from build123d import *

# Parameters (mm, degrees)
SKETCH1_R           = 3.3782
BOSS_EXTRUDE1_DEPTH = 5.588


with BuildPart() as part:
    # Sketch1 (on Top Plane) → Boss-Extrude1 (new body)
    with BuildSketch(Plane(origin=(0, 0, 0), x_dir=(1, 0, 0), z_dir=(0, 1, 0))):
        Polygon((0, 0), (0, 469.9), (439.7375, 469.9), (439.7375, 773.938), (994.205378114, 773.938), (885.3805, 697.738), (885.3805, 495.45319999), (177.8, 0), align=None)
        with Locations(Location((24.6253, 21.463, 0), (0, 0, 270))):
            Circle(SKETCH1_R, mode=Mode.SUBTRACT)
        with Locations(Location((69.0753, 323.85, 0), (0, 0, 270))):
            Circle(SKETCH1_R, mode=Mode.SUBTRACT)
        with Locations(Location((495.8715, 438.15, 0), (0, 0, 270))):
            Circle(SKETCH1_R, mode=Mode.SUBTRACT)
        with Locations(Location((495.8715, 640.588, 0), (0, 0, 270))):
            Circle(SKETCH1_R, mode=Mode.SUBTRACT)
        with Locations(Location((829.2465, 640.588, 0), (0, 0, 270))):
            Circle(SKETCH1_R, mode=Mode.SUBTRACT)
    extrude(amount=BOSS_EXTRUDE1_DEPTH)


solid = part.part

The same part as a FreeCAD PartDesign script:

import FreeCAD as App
import Part
import Sketcher

V = App.Vector
Q = App.Units.Quantity

doc = App.newDocument("Part")
body = doc.addObject("PartDesign::Body", "Body")

sketch1 = body.newObject("Sketcher::SketchObject", "Sketch")
sketch1.AttachmentSupport = (doc.getObject("XZ_Plane"), [""])
sketch1.MapMode = "FlatFace"
sketch1.addGeometry(Part.LineSegment(V(0, -469.9, 0), V(0, 0, 0)), False)
sketch1.addGeometry(Part.LineSegment(V(0, 0, 0), V(177.8, 0, 0)), False)
sketch1.addGeometry(Part.LineSegment(V(177.8, 0, 0), V(885.4, -495.5, 0)), False)
sketch1.addGeometry(Part.LineSegment(V(885.4, -495.5, 0), V(885.4, -697.7, 0)), False)
sketch1.addGeometry(Part.LineSegment(V(885.4, -697.7, 0), V(994.2, -773.9, 0)), False)
sketch1.addGeometry(Part.LineSegment(V(994.2, -773.9, 0), V(439.7, -773.9, 0)), False)
sketch1.addGeometry(Part.LineSegment(V(439.7, -773.9, 0), V(439.7, -469.9, 0)), False)
sketch1.addGeometry(Part.LineSegment(V(439.7, -469.9, 0), V(0, -469.9, 0)), False)
sketch1.addGeometry(Part.Circle(V(24.6, -21.5, 0), V(0, 0, 1), 3.4), False)
sketch1.addGeometry(Part.Circle(V(69.1, -323.9, 0), V(0, 0, 1), 3.4), False)
sketch1.addGeometry(Part.Circle(V(495.9, -438.1, 0), V(0, 0, 1), 3.4), False)
sketch1.addGeometry(Part.Circle(V(829.2, -640.6, 0), V(0, 0, 1), 3.4), False)
sketch1.addGeometry(Part.Circle(V(495.9, -640.6, 0), V(0, 0, 1), 3.4), False)
sketch1.addConstraint(Sketcher.Constraint("Coincident", 0, 2, 1, 1))
sketch1.addConstraint(Sketcher.Constraint("Coincident", 1, 2, 2, 1))
sketch1.addConstraint(Sketcher.Constraint("Coincident", 2, 2, 3, 1))
sketch1.addConstraint(Sketcher.Constraint("Coincident", 3, 2, 4, 1))
sketch1.addConstraint(Sketcher.Constraint("Coincident", 4, 2, 5, 1))
sketch1.addConstraint(Sketcher.Constraint("Coincident", 5, 2, 6, 1))
sketch1.addConstraint(Sketcher.Constraint("Coincident", 6, 2, 7, 1))
sketch1.addConstraint(Sketcher.Constraint("Coincident", 7, 2, 0, 1))
sketch1.addConstraint(Sketcher.Constraint("Vertical", 0))
sketch1.addConstraint(Sketcher.Constraint("Horizontal", 1))
sketch1.addConstraint(Sketcher.Constraint("Vertical", 3))
sketch1.addConstraint(Sketcher.Constraint("Horizontal", 5))
sketch1.addConstraint(Sketcher.Constraint("Vertical", 6))
sketch1.addConstraint(Sketcher.Constraint("Horizontal", 7))
sketch1.addConstraint(Sketcher.Constraint("Coincident", 0, 2, -1, 1))
sketch1.addConstraint(Sketcher.Constraint("Equal", 8, 9))
sketch1.addConstraint(Sketcher.Constraint("Equal", 9, 10))
sketch1.addConstraint(Sketcher.Constraint("Equal", 10, 11))
sketch1.addConstraint(Sketcher.Constraint("Equal", 11, 12))
sketch1.addConstraint(Sketcher.Constraint("Parallel", 2, 4))
sketch1.addConstraint(Sketcher.Constraint("Horizontal", 11, 3, 12, 3))
sketch1.addConstraint(Sketcher.Constraint("Vertical", 10, 3, 12, 3))
sketch1.addConstraint(Sketcher.Constraint("DistanceX", 1, 1, 1, 2, Q("7 in")))
sketch1.addConstraint(Sketcher.Constraint("Diameter", 8, Q("0.266 in")))
sketch1.addConstraint(Sketcher.Constraint("DistanceY", 0, 1, 0, 2, Q("18.5 in")))
sketch1.addConstraint(Sketcher.Constraint("Angle", 2, Q("-35 deg")))
sketch1.addConstraint(Sketcher.Constraint("DistanceY", 4, 2, 3, 2, Q("3 in")))
sketch1.addConstraint(Sketcher.Constraint("DistanceY", 6, 1, 6, 2, Q("11.97 in")))
sketch1.addConstraint(Sketcher.Constraint("DistanceY", 10, 3, 9, 3, Q("4.5 in")))
sketch1.addConstraint(Sketcher.Constraint("DistanceX", 7, 2, 7, 1, Q("17.3125 in")))
sketch1.addConstraint(Sketcher.Constraint("DistanceY", 9, 3, -1, 1, Q("12.75 in")))
sketch1.addConstraint(Sketcher.Constraint("DistanceY", 11, 3, -1, 1, Q("25.22 in")))
sketch1.addConstraint(Sketcher.Constraint("DistanceX", 8, 3, 9, 3, Q("1.75 in")))
sketch1.addConstraint(Sketcher.Constraint("DistanceX", 11, 3, 2, 2, Q("2.21 in")))
sketch1.addConstraint(Sketcher.Constraint("DistanceX", 5, 2, 12, 3, Q("2.21 in")))
sketch1.addConstraint(Sketcher.Constraint("DistanceY", 8, 3, -1, 1, Q("0.845 in")))
sketch1.addConstraint(Sketcher.Constraint("DistanceX", 9, 3, 10, 3, Q("16.803 in")))
sketch1.addConstraint(Sketcher.Constraint("DistanceX", 10, 3, 11, 3, Q("13.125 in")))
pad1 = body.newObject("PartDesign::Pad", "Pad")
pad1.Profile = sketch1
pad1.Length = Q("0.22 in")
pad1.Reversed = True

doc.recompute()
